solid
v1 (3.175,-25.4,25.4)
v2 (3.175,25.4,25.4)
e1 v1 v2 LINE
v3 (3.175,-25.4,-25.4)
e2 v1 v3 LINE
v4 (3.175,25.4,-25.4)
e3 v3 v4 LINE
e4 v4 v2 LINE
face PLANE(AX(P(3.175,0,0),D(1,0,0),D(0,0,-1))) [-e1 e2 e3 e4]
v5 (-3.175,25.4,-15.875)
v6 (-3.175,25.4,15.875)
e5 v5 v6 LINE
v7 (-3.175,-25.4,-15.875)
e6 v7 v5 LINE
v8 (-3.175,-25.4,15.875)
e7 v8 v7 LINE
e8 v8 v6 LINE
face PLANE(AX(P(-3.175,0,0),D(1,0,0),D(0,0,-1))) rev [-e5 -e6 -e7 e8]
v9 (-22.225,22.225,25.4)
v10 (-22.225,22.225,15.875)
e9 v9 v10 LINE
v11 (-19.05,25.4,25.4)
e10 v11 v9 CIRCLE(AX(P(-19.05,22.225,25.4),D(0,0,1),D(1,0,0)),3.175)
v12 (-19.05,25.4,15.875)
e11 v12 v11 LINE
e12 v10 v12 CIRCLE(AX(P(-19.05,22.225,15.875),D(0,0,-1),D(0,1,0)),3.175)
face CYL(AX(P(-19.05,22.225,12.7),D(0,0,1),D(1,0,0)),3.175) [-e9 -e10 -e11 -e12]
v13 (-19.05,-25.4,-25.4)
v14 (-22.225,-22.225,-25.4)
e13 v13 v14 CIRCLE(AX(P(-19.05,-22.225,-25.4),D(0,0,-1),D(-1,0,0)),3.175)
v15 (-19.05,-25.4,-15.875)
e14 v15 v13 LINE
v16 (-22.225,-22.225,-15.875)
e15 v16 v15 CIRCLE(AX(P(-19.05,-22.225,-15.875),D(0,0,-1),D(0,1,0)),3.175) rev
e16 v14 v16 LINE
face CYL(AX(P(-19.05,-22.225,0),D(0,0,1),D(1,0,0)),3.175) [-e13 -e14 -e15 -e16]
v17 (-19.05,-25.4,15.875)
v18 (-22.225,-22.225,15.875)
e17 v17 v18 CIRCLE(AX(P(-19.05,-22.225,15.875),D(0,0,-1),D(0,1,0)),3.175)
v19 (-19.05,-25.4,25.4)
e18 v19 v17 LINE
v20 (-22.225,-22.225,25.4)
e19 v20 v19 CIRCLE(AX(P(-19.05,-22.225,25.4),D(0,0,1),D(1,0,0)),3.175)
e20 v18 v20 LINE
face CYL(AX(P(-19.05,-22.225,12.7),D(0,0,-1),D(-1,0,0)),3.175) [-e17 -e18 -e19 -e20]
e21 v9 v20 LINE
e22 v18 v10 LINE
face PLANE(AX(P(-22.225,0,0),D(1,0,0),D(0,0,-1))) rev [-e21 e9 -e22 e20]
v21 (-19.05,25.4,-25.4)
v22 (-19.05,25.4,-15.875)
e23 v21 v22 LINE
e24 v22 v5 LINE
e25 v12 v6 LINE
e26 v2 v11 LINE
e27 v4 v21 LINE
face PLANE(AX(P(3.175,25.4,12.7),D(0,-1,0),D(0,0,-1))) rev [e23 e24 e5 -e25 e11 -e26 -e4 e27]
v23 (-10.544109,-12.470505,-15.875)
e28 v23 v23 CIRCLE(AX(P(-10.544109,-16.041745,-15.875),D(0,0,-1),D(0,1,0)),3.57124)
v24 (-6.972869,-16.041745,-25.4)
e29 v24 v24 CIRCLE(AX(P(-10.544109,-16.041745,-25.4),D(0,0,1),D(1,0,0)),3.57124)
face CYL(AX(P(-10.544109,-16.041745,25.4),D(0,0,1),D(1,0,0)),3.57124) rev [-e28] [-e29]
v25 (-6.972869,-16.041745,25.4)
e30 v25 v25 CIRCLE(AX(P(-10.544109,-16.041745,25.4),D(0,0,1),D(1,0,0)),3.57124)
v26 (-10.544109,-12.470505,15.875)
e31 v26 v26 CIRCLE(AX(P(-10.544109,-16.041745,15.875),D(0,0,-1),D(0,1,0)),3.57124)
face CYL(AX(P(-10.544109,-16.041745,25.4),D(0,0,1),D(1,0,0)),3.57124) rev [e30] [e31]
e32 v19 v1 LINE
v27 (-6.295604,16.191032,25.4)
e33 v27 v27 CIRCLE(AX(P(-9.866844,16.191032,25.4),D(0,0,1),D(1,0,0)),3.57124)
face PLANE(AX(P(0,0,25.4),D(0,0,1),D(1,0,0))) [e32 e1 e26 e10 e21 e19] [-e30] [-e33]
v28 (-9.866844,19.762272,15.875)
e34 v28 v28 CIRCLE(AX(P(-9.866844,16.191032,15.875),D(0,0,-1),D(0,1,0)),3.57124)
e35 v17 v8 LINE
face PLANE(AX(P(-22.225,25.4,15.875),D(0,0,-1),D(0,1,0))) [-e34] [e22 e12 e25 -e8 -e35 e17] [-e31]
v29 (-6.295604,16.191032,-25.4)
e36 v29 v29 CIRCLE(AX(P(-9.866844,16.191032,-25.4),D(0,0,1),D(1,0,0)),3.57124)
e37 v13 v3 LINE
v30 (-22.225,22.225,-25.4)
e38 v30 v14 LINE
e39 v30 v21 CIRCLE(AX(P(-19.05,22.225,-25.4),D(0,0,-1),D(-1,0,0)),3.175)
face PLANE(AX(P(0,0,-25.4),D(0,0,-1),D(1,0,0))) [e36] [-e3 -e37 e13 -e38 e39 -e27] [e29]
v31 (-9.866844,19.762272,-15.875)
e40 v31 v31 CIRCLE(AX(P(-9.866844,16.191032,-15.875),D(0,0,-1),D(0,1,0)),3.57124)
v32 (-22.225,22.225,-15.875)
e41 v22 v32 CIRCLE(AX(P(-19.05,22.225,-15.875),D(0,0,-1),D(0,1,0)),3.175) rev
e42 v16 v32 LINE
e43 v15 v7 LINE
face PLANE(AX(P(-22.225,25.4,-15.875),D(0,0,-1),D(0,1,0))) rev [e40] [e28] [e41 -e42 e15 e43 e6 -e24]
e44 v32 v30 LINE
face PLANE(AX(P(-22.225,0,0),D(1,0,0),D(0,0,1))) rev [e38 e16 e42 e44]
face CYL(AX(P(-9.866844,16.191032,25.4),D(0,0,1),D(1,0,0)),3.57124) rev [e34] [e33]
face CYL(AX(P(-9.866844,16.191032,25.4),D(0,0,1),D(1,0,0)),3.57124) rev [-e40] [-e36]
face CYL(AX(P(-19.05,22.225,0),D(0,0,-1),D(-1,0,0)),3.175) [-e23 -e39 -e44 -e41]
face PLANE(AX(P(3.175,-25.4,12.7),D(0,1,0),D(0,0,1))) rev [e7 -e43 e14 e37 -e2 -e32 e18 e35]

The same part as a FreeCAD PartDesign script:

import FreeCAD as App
import Part
import Sketcher
from FreeCAD import Vector
Q = App.Units.Quantity


def edges_at(feature, points):
    """Names of the edges that pass closest to the given points."""
    edges = feature.Shape.Edges
    near = lambda p: min(range(len(edges)), key=lambda i: edges[i].distToShape(Part.Vertex(*p))[0])
    return sorted({f"Edge{near(p) + 1}" for p in points})


def add_polygon(sketch, points):
    """Adds a closed chain of lines whose ends are joined by coincident constraints."""
    first, n = sketch.GeometryCount, len(points)
    for a, b in zip(points, points[1:] + points[:1]):
        sketch.addGeometry(Part.LineSegment(App.Vector(*a, 0), App.Vector(*b, 0)), False)
    for i in range(n):
        sketch.addConstraint(Sketcher.Constraint("Coincident", first + i, 2, first + (i + 1) % n, 1))

doc = App.newDocument("Part")
body = doc.addObject("PartDesign::Body", "Body")

# Sketch on YZ plane
sketch1 = doc.addObject("Sketcher::SketchObject", "Sketch")
body.addObject(sketch1)
sketch1.AttachmentSupport = (doc.YZ_Plane, [""])
sketch1.MapMode = "FlatFace"
add_polygon(sketch1, [(25, 13), (-25, 13), (-25, -13), (25, -13)])  # lines 0-3
sketch1.addConstraint(Sketcher.Constraint("Horizontal", 0))
sketch1.addConstraint(Sketcher.Constraint("Vertical", 1))
sketch1.addConstraint(Sketcher.Constraint("Horizontal", 2))
sketch1.addConstraint(Sketcher.Constraint("Vertical", 3))
sketch1.addConstraint(Sketcher.Constraint("Symmetric", 0, 2, 2, 2, -1, 1))
sketch1.addConstraint(Sketcher.Constraint("DistanceX", 0, 2, 0, 1, Q("2 in")))
sketch1.addConstraint(Sketcher.Constraint("DistanceY", 1, 2, 1, 1, Q("1 in")))
pad1 = doc.addObject("PartDesign::Pad", "Pad")
body.addObject(pad1)
pad1.Profile = sketch1
pad1.Length = Q("0.25 in")
pad1.Midplane = True

# Sketch on XY plane
sketch2 = doc.addObject("Sketcher::SketchObject", "Sketch001")
body.addObject(sketch2)
sketch2.AttachmentSupport = (doc.XY_Plane, [""])
sketch2.MapMode = "FlatFace"
sketch2.AttachmentOffset = App.Placement(Vector(0, 0, 0.5 * 25.4), App.Rotation())
add_polygon(sketch2, [(-3, 25), (-3, -25), (3, -25), (3, 25)])  # lines 0-3
sketch2.addConstraint(Sketcher.Constraint("Vertical", 0))
sketch2.addConstraint(Sketcher.Constraint("Horizontal", 1))
sketch2.addConstraint(Sketcher.Constraint("Vertical", 2))
sketch2.addConstraint(Sketcher.Constraint("Horizontal", 3))
sketch2.addConstraint(Sketcher.Constraint("Symmetric", 0, 2, 2, 2, -1, 1))
sketch2.addConstraint(Sketcher.Constraint("DistanceY", 0, 2, 0, 1, Q("2 in")))
sketch2.addConstraint(Sketcher.Constraint("DistanceX", 1, 1, 1, 2, Q("0.25 in")))
pad2 = doc.addObject("PartDesign::Pad", "Pad001")
body.addObject(pad2)
pad2.Profile = sketch2
pad2.Length = Q("0.5 in")

# Sketch on YZ plane
sketch3 = doc.addObject("Sketcher::SketchObject", "Sketch002")
body.addObject(sketch3)
sketch3.AttachmentSupport = (doc.YZ_Plane, [""])
sketch3.MapMode = "FlatFace"
sketch3.AttachmentOffset = App.Placement(Vector(0, 0, 0.125 * 25.4), App.Rotation())
add_polygon(sketch3, [(25, 25), (-25, 25), (-25, 16), (25, 16)])  # lines 0-3
sketch3.addConstraint(Sketcher.Constraint("Horizontal", 0))
sketch3.addConstraint(Sketcher.Constraint("Vertical", 1))
sketch3.addConstraint(Sketcher.Constraint("Horizontal", 2))
sketch3.addConstraint(Sketcher.Constraint("Vertical", 3))
sketch3.addConstraint(Sketcher.Constraint("DistanceX", 0, 2, 0, 1, Q("2 in")))
sketch3.addConstraint(Sketcher.Constraint("DistanceX", 0, 2, -1, 1, Q("1 in")))
sketch3.addConstraint(Sketcher.Constraint("DistanceY", -1, 1, 0, 2, Q("1 in")))
sketch3.addConstraint(Sketcher.Constraint("DistanceY", 1, 2, 1, 1, Q("0.375 in")))
pad3 = doc.addObject("PartDesign::Pad", "Pad002")
body.addObject(pad3)
pad3.Profile = sketch3
pad3.Length = Q("1 in")
pad3.Reversed = True
doc.recompute()

mirrored = doc.addObject("PartDesign::Mirrored", "Mirrored")
body.addObject(mirrored)
mirrored.Originals = [pad2, pad3]
mirrored.MirrorPlane = (doc.XY_Plane, [""])
body.Tip = mirrored

# Sketch on XY plane
sketch4 = doc.addObject("Sketcher::SketchObject", "Sketch003")
body.addObject(sketch4)
sketch4.AttachmentSupport = (doc.XY_Plane, [""])
sketch4.MapMode = "FlatFace"
sketch4.AttachmentOffset = App.Placement(Vector(0, 0, 1 * 25.4), App.Rotation())
sketch4.addGeometry(Part.Circle(Vector(-9.9, 16.2, 0), Vector(0, 0, 1), 3.6), False)
sketch4.addGeometry(Part.Circle(Vector(-10.5, -16, 0), Vector(0, 0, 1), 3.6), False)
sketch4.addConstraint(Sketcher.Constraint("Equal", 0, 1))
sketch4.addConstraint(Sketcher.Constraint("Diameter", 0, Q("0.2812 in")))
sketch4.addConstraint(Sketcher.Constraint("DistanceY", -1, 1, 0, 3, Q("16.191032 mm")))
sketch4.addConstraint(Sketcher.Constraint("DistanceX", 1, 3, -1, 1, Q("10.544109 mm")))
sketch4.addConstraint(Sketcher.Constraint("DistanceX", 0, 3, -1, 1, Q("9.866844 mm")))
sketch4.addConstraint(Sketcher.Constraint("DistanceY", 1, 3, -1, 1, Q("16.041745 mm")))
doc.recompute()
hole = doc.addObject("PartDesign::Hole", "Hole")
body.addObject(hole)
hole.Profile = sketch4
hole.ThreadType = "None"
hole.Diameter = Q("0.2812 in")
hole.DepthType = "ThroughAll"
doc.recompute()

fillet = doc.addObject("PartDesign::Fillet", "Fillet")
body.addObject(fillet)
fillet.Base = (hole, edges_at(hole, [
    (-22.225, 25.4, 20.637),
    (-22.225, -25.4, 20.637),
    (-22.225, -25.4, -20.637),
    (-22.225, 25.4, -20.637),
]))
fillet.Radius = Q("0.125 in")

doc.recompute()
